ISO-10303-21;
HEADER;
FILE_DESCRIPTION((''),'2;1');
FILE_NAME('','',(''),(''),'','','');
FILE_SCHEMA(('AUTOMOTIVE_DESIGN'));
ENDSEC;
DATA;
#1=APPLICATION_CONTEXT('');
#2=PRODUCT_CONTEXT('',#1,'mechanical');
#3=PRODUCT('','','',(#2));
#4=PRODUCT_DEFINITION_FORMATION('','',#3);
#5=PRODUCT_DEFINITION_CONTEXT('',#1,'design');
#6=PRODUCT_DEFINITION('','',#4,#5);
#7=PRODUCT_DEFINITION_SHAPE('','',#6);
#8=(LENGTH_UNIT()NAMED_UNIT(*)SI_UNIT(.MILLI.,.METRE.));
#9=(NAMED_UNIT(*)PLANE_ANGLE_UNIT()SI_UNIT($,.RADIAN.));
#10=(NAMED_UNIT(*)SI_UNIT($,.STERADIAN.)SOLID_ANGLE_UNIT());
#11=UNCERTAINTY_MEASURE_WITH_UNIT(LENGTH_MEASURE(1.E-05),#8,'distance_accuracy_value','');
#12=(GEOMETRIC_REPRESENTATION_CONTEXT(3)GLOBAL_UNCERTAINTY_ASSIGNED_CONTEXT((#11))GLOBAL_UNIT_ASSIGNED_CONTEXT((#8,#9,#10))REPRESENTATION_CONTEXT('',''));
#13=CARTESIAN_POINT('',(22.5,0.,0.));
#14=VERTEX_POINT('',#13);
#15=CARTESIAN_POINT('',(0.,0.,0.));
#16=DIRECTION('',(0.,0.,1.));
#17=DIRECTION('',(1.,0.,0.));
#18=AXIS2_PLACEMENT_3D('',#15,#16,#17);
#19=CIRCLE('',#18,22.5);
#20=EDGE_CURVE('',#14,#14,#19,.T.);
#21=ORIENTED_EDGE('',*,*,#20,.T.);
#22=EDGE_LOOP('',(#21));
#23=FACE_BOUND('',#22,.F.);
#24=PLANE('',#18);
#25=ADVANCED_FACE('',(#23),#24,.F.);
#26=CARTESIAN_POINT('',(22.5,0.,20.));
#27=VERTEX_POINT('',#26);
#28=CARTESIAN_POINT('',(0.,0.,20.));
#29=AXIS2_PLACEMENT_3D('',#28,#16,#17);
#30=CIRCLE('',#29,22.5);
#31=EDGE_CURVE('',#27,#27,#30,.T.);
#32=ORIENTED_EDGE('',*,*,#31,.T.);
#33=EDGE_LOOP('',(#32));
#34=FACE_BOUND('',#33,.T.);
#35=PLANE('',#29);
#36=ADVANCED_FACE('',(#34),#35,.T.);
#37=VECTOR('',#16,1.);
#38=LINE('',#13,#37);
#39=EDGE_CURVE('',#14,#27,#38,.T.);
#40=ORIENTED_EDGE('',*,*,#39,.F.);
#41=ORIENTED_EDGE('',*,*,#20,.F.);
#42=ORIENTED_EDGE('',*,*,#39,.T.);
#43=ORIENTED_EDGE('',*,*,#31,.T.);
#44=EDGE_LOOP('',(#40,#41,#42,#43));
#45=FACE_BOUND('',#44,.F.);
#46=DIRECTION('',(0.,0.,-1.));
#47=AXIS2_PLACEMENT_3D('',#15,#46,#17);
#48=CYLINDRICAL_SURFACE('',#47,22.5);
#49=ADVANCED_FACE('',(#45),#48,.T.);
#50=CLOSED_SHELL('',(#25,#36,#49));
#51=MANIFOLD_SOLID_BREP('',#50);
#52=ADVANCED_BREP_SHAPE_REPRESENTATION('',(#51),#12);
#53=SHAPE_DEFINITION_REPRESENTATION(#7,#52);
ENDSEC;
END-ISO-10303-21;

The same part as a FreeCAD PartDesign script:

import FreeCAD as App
import Part
import Sketcher

V = App.Vector

doc = App.newDocument("Part")
body = doc.addObject("PartDesign::Body", "Body")

sketch1 = body.newObject("Sketcher::SketchObject", "Sketch")
sketch1.AttachmentSupport = (doc.getObject("XY_Plane"), [""])
sketch1.MapMode = "FlatFace"
sketch1.addGeometry(Part.Circle(V(0, 0, 0), V(0, 0, 1), 22), False)
sketch1.addConstraint(Sketcher.Constraint("Coincident", 0, 3, -1, 1))
sketch1.addConstraint(Sketcher.Constraint("Diameter", 0, 45.0))
pad1 = body.newObject("PartDesign::Pad", "Pad")
pad1.Profile = sketch1
pad1.Length = 20

doc.recompute()
